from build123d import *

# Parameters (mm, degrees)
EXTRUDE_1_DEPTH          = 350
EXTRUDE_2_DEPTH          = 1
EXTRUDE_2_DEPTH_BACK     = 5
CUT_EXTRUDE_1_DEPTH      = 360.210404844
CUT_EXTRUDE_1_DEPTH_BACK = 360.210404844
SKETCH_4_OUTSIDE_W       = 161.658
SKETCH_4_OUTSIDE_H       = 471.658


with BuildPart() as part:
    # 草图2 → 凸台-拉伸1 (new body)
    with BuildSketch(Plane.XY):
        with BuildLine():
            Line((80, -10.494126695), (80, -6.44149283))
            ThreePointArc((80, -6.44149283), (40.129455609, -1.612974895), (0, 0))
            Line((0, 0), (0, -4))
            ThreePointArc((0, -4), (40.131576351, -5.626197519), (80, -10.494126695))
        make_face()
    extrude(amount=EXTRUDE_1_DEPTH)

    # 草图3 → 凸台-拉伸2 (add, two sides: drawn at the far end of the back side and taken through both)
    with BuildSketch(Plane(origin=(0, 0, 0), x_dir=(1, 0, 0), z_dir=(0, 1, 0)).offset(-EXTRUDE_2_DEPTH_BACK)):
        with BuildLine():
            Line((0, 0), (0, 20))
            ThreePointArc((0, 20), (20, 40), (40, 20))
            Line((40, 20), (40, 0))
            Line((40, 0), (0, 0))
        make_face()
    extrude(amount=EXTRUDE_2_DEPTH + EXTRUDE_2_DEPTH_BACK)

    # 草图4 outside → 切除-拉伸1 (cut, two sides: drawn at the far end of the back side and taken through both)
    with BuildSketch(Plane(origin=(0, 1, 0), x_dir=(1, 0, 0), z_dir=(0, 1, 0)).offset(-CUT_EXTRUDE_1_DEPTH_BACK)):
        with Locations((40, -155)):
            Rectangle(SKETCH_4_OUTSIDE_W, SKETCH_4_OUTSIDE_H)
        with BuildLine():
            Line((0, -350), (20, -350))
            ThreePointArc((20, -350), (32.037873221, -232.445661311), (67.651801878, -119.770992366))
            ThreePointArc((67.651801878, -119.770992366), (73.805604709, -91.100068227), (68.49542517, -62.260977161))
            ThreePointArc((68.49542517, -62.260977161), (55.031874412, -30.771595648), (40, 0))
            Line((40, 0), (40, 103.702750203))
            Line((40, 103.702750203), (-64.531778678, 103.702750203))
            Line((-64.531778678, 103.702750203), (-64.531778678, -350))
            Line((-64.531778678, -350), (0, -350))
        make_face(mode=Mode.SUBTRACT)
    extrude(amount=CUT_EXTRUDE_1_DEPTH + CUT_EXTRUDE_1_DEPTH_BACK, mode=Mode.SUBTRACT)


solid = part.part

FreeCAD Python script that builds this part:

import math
import FreeCAD as App
import Part
import Sketcher
from FreeCAD import Vector

doc = App.newDocument("Part")
body = doc.addObject("PartDesign::Body", "Body")

# Sketch on XY plane
sketch1 = body.newObject("Sketcher::SketchObject", "Sketch")
sketch1.AttachmentSupport = (doc.getObject("XY_Plane"), [""])
sketch1.MapMode = "FlatFace"
sketch1.addGeometry([
    Part.LineSegment(Vector(80, -10.5, 0), Vector(80, -6.4, 0)),
    Part.ArcOfCircle(Part.Circle(Vector(0, -500, 0), Vector(0, 0, 1), 500), math.radians(80.79), math.radians(90)),
    Part.LineSegment(Vector(0, 0, 0), Vector(0, -4, 0)),
    Part.ArcOfCircle(Part.Circle(Vector(0, -500, 0), Vector(0, 0, 1), 496), math.radians(80.72), math.radians(90)),
], False)
sketch1.addConstraint([
    Sketcher.Constraint("Coincident", 0, 2, 1, 1),
    Sketcher.Constraint("Coincident", 1, 2, 2, 1),
    Sketcher.Constraint("Coincident", 2, 2, 3, 2),
    Sketcher.Constraint("Coincident", 3, 1, 0, 1),
    Sketcher.Constraint("Vertical", 0),
    Sketcher.Constraint("Vertical", 2),
    Sketcher.Constraint("Coincident", 3, 3, 1, 3),
    Sketcher.Constraint("PointOnObject", 1, 3, -2),
    Sketcher.Constraint("PointOnObject", 2, 2, -2),
    Sketcher.Constraint("Radius", 1, 500.0),
    Sketcher.Constraint("Radius", 3, 496.0),
    Sketcher.Constraint("DistanceY", 1, 3, -1, 1, 500.0),
    Sketcher.Constraint("DistanceX", -1, 1, 0, 2, 80.0),
])
pad1 = body.newObject("PartDesign::Pad", "Pad")
pad1.Profile = sketch1
pad1.Length = 350

# Sketch on XZ plane
sketch2 = body.newObject("Sketcher::SketchObject", "Sketch001")
sketch2.AttachmentSupport = (doc.getObject("XZ_Plane"), [""])
sketch2.MapMode = "FlatFace"
sketch2.addGeometry([
    Part.LineSegment(Vector(0, -20, 0), Vector(0, 0, 0)),
    Part.LineSegment(Vector(0, 0, 0), Vector(40, 0, 0)),
    Part.LineSegment(Vector(40, 0, 0), Vector(40, -20, 0)),
    Part.ArcOfCircle(Part.Circle(Vector(20, -20, 0), Vector(0, 0, 1), 20), math.radians(180), math.radians(360)),
], False)
sketch2.addConstraint([
    Sketcher.Constraint("Coincident", 0, 2, 1, 1),
    Sketcher.Constraint("Coincident", 1, 2, 2, 1),
    Sketcher.Constraint("Tangent", 2, 2, 3, 2),
    Sketcher.Constraint("Tangent", 3, 1, 0, 1),
    Sketcher.Constraint("Vertical", 0),
    Sketcher.Constraint("Horizontal", 1),
    Sketcher.Constraint("Vertical", 2),
    Sketcher.Constraint("Coincident", 0, 2, -1, 1),
    Sketcher.Constraint("Radius", 3, 20.0),
    Sketcher.Constraint("DistanceY", 0, 1, 0, 2, 20.0),
])
pad2 = body.newObject("PartDesign::Pad", "Pad001")
pad2.Profile = sketch2
pad2.Type = "TwoLengths"
pad2.Length = 1
pad2.Length2 = 5
pad2.Reversed = True

# Sketch on XZ plane
sketch3 = body.newObject("Sketcher::SketchObject", "Sketch002")
sketch3.AttachmentSupport = (doc.getObject("XZ_Plane"), [""])
sketch3.MapMode = "FlatFace"
sketch3.AttachmentOffset = App.Placement(Vector(0, 0, -1), App.Rotation())
sketch3.addGeometry([
    Part.LineSegment(Vector(-41, 350, 0), Vector(-41, 391, 0)),  # 0
    Part.LineSegment(Vector(-41, 391, 0), Vector(121, 391, 0)),  # 1
    Part.LineSegment(Vector(121, 391, 0), Vector(121, -81, 0)),  # 2
    Part.LineSegment(Vector(121, -81, 0), Vector(40, -81, 0)),  # 3
    Part.LineSegment(Vector(40, -81, 0), Vector(40, 0, 0)),  # 4
    Part.ArcOfCircle(Part.Circle(Vector(-563, 314, 0), Vector(0, 0, 1), 680), math.radians(-27.48), math.radians(-21.71)),  # 5
    Part.ArcOfCircle(Part.Circle(Vector(-1, 90, 0), Vector(0, 0, 1), 75), math.radians(-22), math.radians(23)),  # 6
    Part.ArcOfCircle(Part.Circle(Vector(600, 350, 0), Vector(0, 0, 1), 580), math.radians(180), math.radians(203)),  # 7
    Part.LineSegment(Vector(20, 350, 0), Vector(-41, 350, 0)),  # 8
], False)
sketch3.addConstraint([
    Sketcher.Constraint("Coincident", 0, 2, 1, 1),
    Sketcher.Constraint("Coincident", 1, 2, 2, 1),
    Sketcher.Constraint("Coincident", 2, 2, 3, 1),
    Sketcher.Constraint("Coincident", 3, 2, 4, 1),
    Sketcher.Constraint("Coincident", 4, 2, 5, 1),
    Sketcher.Constraint("Tangent", 5, 2, 6, 1),
    Sketcher.Constraint("Tangent", 6, 2, 7, 2),
    Sketcher.Constraint("Coincident", 7, 1, 8, 1),
    Sketcher.Constraint("Coincident", 8, 2, 0, 1),
    Sketcher.Constraint("Vertical", 0),
    Sketcher.Constraint("Horizontal", 1),
    Sketcher.Constraint("Vertical", 2),
    Sketcher.Constraint("Horizontal", 3),
    Sketcher.Constraint("Vertical", 4),
    Sketcher.Constraint("Horizontal", 8),
    Sketcher.Constraint("PointOnObject", 4, 2, -1),
    Sketcher.Constraint("Equal", 3, 4),
    Sketcher.Constraint("Radius", 5, 680.0),
    Sketcher.Constraint("Radius", 6, 75.0),
    Sketcher.Constraint("Radius", 7, 580.0),
    Sketcher.Constraint("DistanceY", -1, 1, 6, 3, 90.0),
    Sketcher.Constraint("DistanceX", -1, 1, 7, 3, 600.0),
    Sketcher.Constraint("DistanceY", -1, 1, 7, 3, 350.0),
    Sketcher.Constraint("DistanceX", -1, 1, 3, 2, 40.0),
    Sketcher.Constraint("DistanceY", -1, 1, 8, 2, 350.0),
    Sketcher.Constraint("DistanceX", 1, 1, 1, 2, 161.658),
    Sketcher.Constraint("DistanceX", 3, 2, 3, 1, 80.829),
    Sketcher.Constraint("DistanceY", 0, 1, 0, 2, 40.829),
])
pocket1 = body.newObject("PartDesign::Pocket", "Pocket")
pocket1.Profile = sketch3
pocket1.Type = "ThroughAll"
pocket1.Midplane = True

doc.recompute()
